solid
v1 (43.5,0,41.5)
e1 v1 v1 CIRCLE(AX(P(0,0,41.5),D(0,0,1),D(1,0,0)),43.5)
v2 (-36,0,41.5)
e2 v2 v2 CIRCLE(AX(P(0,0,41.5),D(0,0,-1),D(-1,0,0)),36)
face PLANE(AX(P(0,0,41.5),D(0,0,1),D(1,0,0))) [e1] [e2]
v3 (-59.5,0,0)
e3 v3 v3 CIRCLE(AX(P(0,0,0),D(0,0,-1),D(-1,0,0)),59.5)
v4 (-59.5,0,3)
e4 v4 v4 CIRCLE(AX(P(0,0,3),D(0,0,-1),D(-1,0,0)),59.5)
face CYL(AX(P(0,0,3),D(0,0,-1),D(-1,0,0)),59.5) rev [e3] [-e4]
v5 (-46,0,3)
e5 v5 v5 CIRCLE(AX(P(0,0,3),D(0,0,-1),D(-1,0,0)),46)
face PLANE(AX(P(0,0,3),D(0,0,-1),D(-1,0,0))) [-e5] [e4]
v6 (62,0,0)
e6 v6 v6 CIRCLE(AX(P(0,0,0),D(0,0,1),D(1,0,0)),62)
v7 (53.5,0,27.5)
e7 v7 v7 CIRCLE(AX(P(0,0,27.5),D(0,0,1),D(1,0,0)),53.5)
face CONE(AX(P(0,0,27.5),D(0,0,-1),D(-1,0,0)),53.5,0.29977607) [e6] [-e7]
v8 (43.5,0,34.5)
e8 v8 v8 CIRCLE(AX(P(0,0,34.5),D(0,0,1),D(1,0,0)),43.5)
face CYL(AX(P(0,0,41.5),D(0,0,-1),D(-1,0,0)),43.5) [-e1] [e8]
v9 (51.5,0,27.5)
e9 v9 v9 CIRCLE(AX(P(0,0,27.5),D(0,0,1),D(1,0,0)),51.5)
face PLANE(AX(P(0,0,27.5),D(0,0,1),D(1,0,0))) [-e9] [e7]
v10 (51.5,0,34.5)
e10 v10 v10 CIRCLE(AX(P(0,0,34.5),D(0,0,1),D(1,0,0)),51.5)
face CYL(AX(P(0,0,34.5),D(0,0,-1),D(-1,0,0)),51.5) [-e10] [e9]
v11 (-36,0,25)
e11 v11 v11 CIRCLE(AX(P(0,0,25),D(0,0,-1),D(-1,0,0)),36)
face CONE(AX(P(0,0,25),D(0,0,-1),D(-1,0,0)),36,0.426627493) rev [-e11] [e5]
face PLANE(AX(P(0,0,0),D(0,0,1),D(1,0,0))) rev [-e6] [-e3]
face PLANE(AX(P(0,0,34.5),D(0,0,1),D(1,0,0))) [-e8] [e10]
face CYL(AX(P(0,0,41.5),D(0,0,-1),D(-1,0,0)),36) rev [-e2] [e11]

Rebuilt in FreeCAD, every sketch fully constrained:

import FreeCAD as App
import Part
import Sketcher
Q = App.Units.Quantity

doc = App.newDocument("Part")
body = doc.addObject("PartDesign::Body", "Body")

# Sketch on XY plane
sketch1 = doc.addObject("Sketcher::SketchObject", "Sketch")
body.addObject(sketch1)
sketch1.AttachmentSupport = (doc.XY_Plane, [""])
sketch1.MapMode = "FlatFace"
sketch1.addGeometry(Part.Circle(App.Vector(0, 0, 0), App.Vector(0, 0, 1), 62), False)
sketch1.addConstraint([
    Sketcher.Constraint("Coincident", 0, 3, -1, 1),
    Sketcher.Constraint("Diameter", 0, Q("124 mm")),
])

# Sketch on XY plane
sketch2 = doc.addObject("Sketcher::SketchObject", "Sketch001")
body.addObject(sketch2)
sketch2.AttachmentSupport = (doc.XY_Plane, [""])
sketch2.MapMode = "FlatFace"
sketch2.AttachmentOffset = App.Placement(App.Vector(0, 0, 27.5), App.Rotation())
sketch2.addGeometry(Part.Circle(App.Vector(0, 0, 0), App.Vector(0, 0, 1), 54), False)
sketch2.addConstraint([
    Sketcher.Constraint("Coincident", 0, 3, -1, 1),
    Sketcher.Constraint("Diameter", 0, Q("107 mm")),
])

additiveloft = doc.addObject("PartDesign::AdditiveLoft", "AdditiveLoft")
body.addObject(additiveloft)
additiveloft.Profile = sketch1
additiveloft.Sections = [sketch2]

# Sketch on XY plane
sketch3 = doc.addObject("Sketcher::SketchObject", "Sketch002")
body.addObject(sketch3)
sketch3.AttachmentSupport = (doc.XY_Plane, [""])
sketch3.MapMode = "FlatFace"
sketch3.AttachmentOffset = App.Placement(App.Vector(0, 0, 27.5), App.Rotation())
sketch3.addGeometry(Part.Circle(App.Vector(0, 0, 0), App.Vector(0, 0, 1), 52), False)
sketch3.addConstraint([
    Sketcher.Constraint("Coincident", 0, 3, -1, 1),
    Sketcher.Constraint("Diameter", 0, Q("103 mm")),
])
pad1 = doc.addObject("PartDesign::Pad", "Pad")
body.addObject(pad1)
pad1.Profile = sketch3
pad1.Length = 7

# Sketch on XY plane
sketch4 = doc.addObject("Sketcher::SketchObject", "Sketch003")
body.addObject(sketch4)
sketch4.AttachmentSupport = (doc.XY_Plane, [""])
sketch4.MapMode = "FlatFace"
sketch4.AttachmentOffset = App.Placement(App.Vector(0, 0, 34.5), App.Rotation())
sketch4.addGeometry(Part.Circle(App.Vector(0, 0, 0), App.Vector(0, 0, 1), 44), False)
sketch4.addConstraint([
    Sketcher.Constraint("Coincident", 0, 3, -1, 1),
    Sketcher.Constraint("Diameter", 0, Q("87 mm")),
])
pad2 = doc.addObject("PartDesign::Pad", "Pad001")
body.addObject(pad2)
pad2.Profile = sketch4
pad2.Length = 7

# Sketch on XY plane
sketch5 = doc.addObject("Sketcher::SketchObject", "Sketch004")
body.addObject(sketch5)
sketch5.AttachmentSupport = (doc.XY_Plane, [""])
sketch5.MapMode = "FlatFace"
sketch5.addGeometry(Part.Circle(App.Vector(0, 0, 0), App.Vector(0, 0, 1), 60), False)
sketch5.addConstraint([
    Sketcher.Constraint("Coincident", 0, 3, -1, 1),
    Sketcher.Constraint("Diameter", 0, Q("119 mm")),
])
pocket1 = doc.addObject("PartDesign::Pocket", "Pocket")
body.addObject(pocket1)
pocket1.Profile = sketch5
pocket1.Length = 3
pocket1.Reversed = True

# Sketch on XY plane
sketch6 = doc.addObject("Sketcher::SketchObject", "Sketch005")
body.addObject(sketch6)
sketch6.AttachmentSupport = (doc.XY_Plane, [""])
sketch6.MapMode = "FlatFace"
sketch6.AttachmentOffset = App.Placement(App.Vector(0, 0, 3), App.Rotation())
sketch6.addGeometry(Part.Circle(App.Vector(0, 0, 0), App.Vector(0, 0, 1), 46), False)
sketch6.addConstraint([
    Sketcher.Constraint("Coincident", 0, 3, -1, 1),
    Sketcher.Constraint("Diameter", 0, Q("92 mm")),
])

# Sketch on XY plane
sketch7 = doc.addObject("Sketcher::SketchObject", "Sketch006")
body.addObject(sketch7)
sketch7.AttachmentSupport = (doc.XY_Plane, [""])
sketch7.MapMode = "FlatFace"
sketch7.AttachmentOffset = App.Placement(App.Vector(0, 0, 25), App.Rotation())
sketch7.addGeometry(Part.Circle(App.Vector(0, 0, 0), App.Vector(0, 0, 1), 36), False)
sketch7.addConstraint([
    Sketcher.Constraint("Coincident", 0, 3, -1, 1),
    Sketcher.Constraint("Diameter", 0, Q("72 mm")),
])

subtractiveloft = doc.addObject("PartDesign::SubtractiveLoft", "SubtractiveLoft")
body.addObject(subtractiveloft)
subtractiveloft.Profile = sketch6
subtractiveloft.Sections = [sketch7]

# Sketch on XY plane
sketch8 = doc.addObject("Sketcher::SketchObject", "Sketch007")
body.addObject(sketch8)
sketch8.AttachmentSupport = (doc.XY_Plane, [""])
sketch8.MapMode = "FlatFace"
sketch8.AttachmentOffset = App.Placement(App.Vector(0, 0, 25), App.Rotation())
sketch8.addGeometry(Part.Circle(App.Vector(0, 0, 0), App.Vector(0, 0, 1), 36), False)
sketch8.addConstraint([
    Sketcher.Constraint("Coincident", 0, 3, -1, 1),
    Sketcher.Constraint("Diameter", 0, Q("72 mm")),
])
pocket2 = doc.addObject("PartDesign::Pocket", "Pocket001")
body.addObject(pocket2)
pocket2.Profile = sketch8
pocket2.Type = "ThroughAll"
pocket2.Reversed = True

doc.recompute()
